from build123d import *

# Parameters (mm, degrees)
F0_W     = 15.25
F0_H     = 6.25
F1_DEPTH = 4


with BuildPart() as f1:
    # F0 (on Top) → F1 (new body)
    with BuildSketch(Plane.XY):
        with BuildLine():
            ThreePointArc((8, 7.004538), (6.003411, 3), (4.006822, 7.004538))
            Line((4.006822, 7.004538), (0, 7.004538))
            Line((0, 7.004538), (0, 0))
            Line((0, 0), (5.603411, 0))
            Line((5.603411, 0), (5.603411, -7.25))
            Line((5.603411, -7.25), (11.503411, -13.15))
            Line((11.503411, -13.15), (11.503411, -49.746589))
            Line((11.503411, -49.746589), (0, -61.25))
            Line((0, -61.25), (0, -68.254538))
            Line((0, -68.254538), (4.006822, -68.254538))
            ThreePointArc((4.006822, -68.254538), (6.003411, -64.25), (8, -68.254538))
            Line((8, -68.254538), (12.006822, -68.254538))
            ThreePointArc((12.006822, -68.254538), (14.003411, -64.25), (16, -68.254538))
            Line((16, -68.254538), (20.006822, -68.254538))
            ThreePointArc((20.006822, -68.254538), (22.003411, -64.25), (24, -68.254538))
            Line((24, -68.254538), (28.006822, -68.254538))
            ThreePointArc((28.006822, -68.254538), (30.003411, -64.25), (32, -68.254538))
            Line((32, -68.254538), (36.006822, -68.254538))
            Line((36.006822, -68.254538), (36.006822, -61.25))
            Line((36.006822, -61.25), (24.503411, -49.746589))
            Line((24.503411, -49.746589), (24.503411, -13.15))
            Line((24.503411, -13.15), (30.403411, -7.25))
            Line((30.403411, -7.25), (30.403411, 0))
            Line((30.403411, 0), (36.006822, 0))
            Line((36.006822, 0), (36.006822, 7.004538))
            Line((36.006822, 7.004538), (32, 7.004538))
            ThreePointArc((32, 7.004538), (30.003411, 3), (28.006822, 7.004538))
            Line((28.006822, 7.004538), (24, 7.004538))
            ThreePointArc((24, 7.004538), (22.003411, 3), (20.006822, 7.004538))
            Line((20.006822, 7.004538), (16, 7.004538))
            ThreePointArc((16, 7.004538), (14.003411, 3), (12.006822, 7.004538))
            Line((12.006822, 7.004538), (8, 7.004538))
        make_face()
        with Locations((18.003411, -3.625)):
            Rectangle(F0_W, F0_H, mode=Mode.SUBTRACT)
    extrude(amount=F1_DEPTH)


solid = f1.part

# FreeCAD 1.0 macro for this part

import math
import FreeCAD as App
import Part
import Sketcher
from FreeCAD import Vector
Q = App.Units.Quantity

doc = App.newDocument("Part")
body = doc.addObject("PartDesign::Body", "Body")

sketch1 = body.newObject("Sketcher::SketchObject", "Sketch")
sketch1.AttachmentSupport = (doc.getObject("XY_Plane"), [""])
sketch1.MapMode = "FlatFace"
sketch1.addGeometry([
    Part.ArcOfCircle(Part.Circle(Vector(6, 5.5, 0), Vector(0, 0, 1), 2.5), math.radians(143), math.radians(397)),
    Part.LineSegment(Vector(4, 7, 0), Vector(0, 7, 0)),
    Part.LineSegment(Vector(0, 7, 0), Vector(0, 0, 0)),
    Part.LineSegment(Vector(0, 0, 0), Vector(5.6, 0, 0)),
    Part.LineSegment(Vector(5.6, 0, 0), Vector(5.6, -7.2, 0)),
    Part.LineSegment(Vector(5.6, -7.2, 0), Vector(11.5, -13.2, 0)),
    Part.LineSegment(Vector(11.5, -13.2, 0), Vector(11.5, -49.7, 0)),
    Part.LineSegment(Vector(11.5, -49.7, 0), Vector(0, -61.2, 0)),
    Part.LineSegment(Vector(0, -61.2, 0), Vector(0, -68.3, 0)),
    Part.LineSegment(Vector(0, -68.3, 0), Vector(4, -68.3, 0)),
    Part.ArcOfCircle(Part.Circle(Vector(6, -66.8, 0), Vector(0, 0, 1), 2.5), math.radians(-37), math.radians(217)),
    Part.LineSegment(Vector(8, -68.3, 0), Vector(12, -68.3, 0)),
    Part.ArcOfCircle(Part.Circle(Vector(14, -66.8, 0), Vector(0, 0, 1), 2.5), math.radians(-37), math.radians(217)),
    Part.LineSegment(Vector(16, -68.3, 0), Vector(20, -68.3, 0)),
    Part.ArcOfCircle(Part.Circle(Vector(22, -66.8, 0), Vector(0, 0, 1), 2.5), math.radians(-37), math.radians(217)),
    Part.LineSegment(Vector(24, -68.3, 0), Vector(28, -68.3, 0)),
    Part.ArcOfCircle(Part.Circle(Vector(30, -66.8, 0), Vector(0, 0, 1), 2.5), math.radians(-37), math.radians(217)),
    Part.LineSegment(Vector(32, -68.3, 0), Vector(36, -68.3, 0)),
    Part.LineSegment(Vector(36, -68.3, 0), Vector(36, -61.2, 0)),
    Part.LineSegment(Vector(36, -61.2, 0), Vector(24.5, -49.7, 0)),
    Part.LineSegment(Vector(24.5, -49.7, 0), Vector(24.5, -13.2, 0)),
    Part.LineSegment(Vector(24.5, -13.2, 0), Vector(30.4, -7.2, 0)),
    Part.LineSegment(Vector(30.4, -7.2, 0), Vector(30.4, 0, 0)),
    Part.LineSegment(Vector(30.4, 0, 0), Vector(36, 0, 0)),
    Part.LineSegment(Vector(36, 0, 0), Vector(36, 7, 0)),
    Part.LineSegment(Vector(36, 7, 0), Vector(32, 7, 0)),
    Part.ArcOfCircle(Part.Circle(Vector(30, 5.5, 0), Vector(0, 0, 1), 2.5), math.radians(143), math.radians(397)),
    Part.LineSegment(Vector(28, 7, 0), Vector(24, 7, 0)),
    Part.ArcOfCircle(Part.Circle(Vector(22, 5.5, 0), Vector(0, 0, 1), 2.5), math.radians(143), math.radians(397)),
    Part.LineSegment(Vector(20, 7, 0), Vector(16, 7, 0)),
    Part.ArcOfCircle(Part.Circle(Vector(14, 5.5, 0), Vector(0, 0, 1), 2.5), math.radians(143), math.radians(397)),
    Part.LineSegment(Vector(12, 7, 0), Vector(8, 7, 0)),
    Part.LineSegment(Vector(25.6, -6.8, 0), Vector(10.4, -6.8, 0)),
    Part.LineSegment(Vector(10.4, -6.8, 0), Vector(10.4, -0.5, 0)),
    Part.LineSegment(Vector(10.4, -0.5, 0), Vector(25.6, -0.5, 0)),
    Part.LineSegment(Vector(25.6, -0.5, 0), Vector(25.6, -6.8, 0)),
], False)
sketch1.addConstraint([
    Sketcher.Constraint("Coincident", 0, 1, 1, 1),
    Sketcher.Constraint("Coincident", 1, 2, 2, 1),
    Sketcher.Constraint("Coincident", 2, 2, 3, 1),
    Sketcher.Constraint("Coincident", 3, 2, 4, 1),
    Sketcher.Constraint("Coincident", 4, 2, 5, 1),
    Sketcher.Constraint("Coincident", 5, 2, 6, 1),
    Sketcher.Constraint("Coincident", 6, 2, 7, 1),
    Sketcher.Constraint("Coincident", 7, 2, 8, 1),
    Sketcher.Constraint("Coincident", 8, 2, 9, 1),
    Sketcher.Constraint("Coincident", 9, 2, 10, 2),
    Sketcher.Constraint("Coincident", 10, 1, 11, 1),
    Sketcher.Constraint("Coincident", 11, 2, 12, 2),
    Sketcher.Constraint("Coincident", 12, 1, 13, 1),
    Sketcher.Constraint("Coincident", 13, 2, 14, 2),
    Sketcher.Constraint("Coincident", 14, 1, 15, 1),
    Sketcher.Constraint("Coincident", 15, 2, 16, 2),
    Sketcher.Constraint("Coincident", 16, 1, 17, 1),
    Sketcher.Constraint("Coincident", 17, 2, 18, 1),
    Sketcher.Constraint("Coincident", 18, 2, 19, 1),
    Sketcher.Constraint("Coincident", 19, 2, 20, 1),
    Sketcher.Constraint("Coincident", 20, 2, 21, 1),
    Sketcher.Constraint("Coincident", 21, 2, 22, 1),
    Sketcher.Constraint("Coincident", 22, 2, 23, 1),
    Sketcher.Constraint("Coincident", 23, 2, 24, 1),
    Sketcher.Constraint("Coincident", 24, 2, 25, 1),
    Sketcher.Constraint("Coincident", 25, 2, 26, 2),
    Sketcher.Constraint("Coincident", 26, 1, 27, 1),
    Sketcher.Constraint("Coincident", 27, 2, 28, 2),
    Sketcher.Constraint("Coincident", 28, 1, 29, 1),
    Sketcher.Constraint("Coincident", 29, 2, 30, 2),
    Sketcher.Constraint("Coincident", 30, 1, 31, 1),
    Sketcher.Constraint("Coincident", 31, 2, 0, 2),
    Sketcher.Constraint("Coincident", 32, 2, 33, 1),
    Sketcher.Constraint("Coincident", 33, 2, 34, 1),
    Sketcher.Constraint("Coincident", 34, 2, 35, 1),
    Sketcher.Constraint("Coincident", 35, 2, 32, 1),
    Sketcher.Constraint("Horizontal", 1),
    Sketcher.Constraint("Vertical", 2),
    Sketcher.Constraint("Horizontal", 3),
    Sketcher.Constraint("Vertical", 4),
    Sketcher.Constraint("Vertical", 6),
    Sketcher.Constraint("Vertical", 8),
    Sketcher.Constraint("Horizontal", 9),
    Sketcher.Constraint("Horizontal", 11),
    Sketcher.Constraint("Horizontal", 13),
    Sketcher.Constraint("Horizontal", 15),
    Sketcher.Constraint("Horizontal", 17),
    Sketcher.Constraint("Vertical", 18),
    Sketcher.Constraint("Vertical", 20),
    Sketcher.Constraint("Vertical", 22),
    Sketcher.Constraint("Horizontal", 23),
    Sketcher.Constraint("Vertical", 24),
    Sketcher.Constraint("Horizontal", 25),
    Sketcher.Constraint("Horizontal", 27),
    Sketcher.Constraint("Horizontal", 29),
    Sketcher.Constraint("Horizontal", 31),
    Sketcher.Constraint("Horizontal", 32),
    Sketcher.Constraint("Vertical", 33),
    Sketcher.Constraint("Horizontal", 34),
    Sketcher.Constraint("Vertical", 35),
    Sketcher.Constraint("Coincident", 2, 2, -1, 1),
    Sketcher.Constraint("Equal", 0, 10),
    Sketcher.Constraint("Equal", 10, 12),
    Sketcher.Constraint("Equal", 12, 14),
    Sketcher.Constraint("Equal", 14, 16),
    Sketcher.Constraint("Equal", 16, 26),
    Sketcher.Constraint("Equal", 26, 28),
    Sketcher.Constraint("Equal", 28, 30),
    Sketcher.Constraint("PointOnObject", 7, 2, -2),
    Sketcher.Constraint("PointOnObject", 22, 2, -1),
    Sketcher.Constraint("Perpendicular", 5, 7),
    Sketcher.Constraint("Perpendicular", 7, 19),
    Sketcher.Constraint("Perpendicular", 19, 21),
    Sketcher.Constraint("Horizontal", 10, 3, 12, 3),
    Sketcher.Constraint("Horizontal", 12, 3, 14, 3),
    Sketcher.Constraint("Horizontal", 14, 3, 16, 3),
    Sketcher.Constraint("Horizontal", 0, 3, 26, 3),
    Sketcher.Constraint("Horizontal", 26, 3, 28, 3),
    Sketcher.Constraint("Horizontal", 28, 3, 30, 3),
    Sketcher.Constraint("Horizontal", 9, 2, 10, 1),
    Sketcher.Constraint("Horizontal", 11, 2, 12, 1),
    Sketcher.Constraint("Horizontal", 13, 2, 14, 1),
    Sketcher.Constraint("Horizontal", 15, 2, 16, 1),
    Sketcher.Constraint("Horizontal", 7, 2, 18, 2),
    Sketcher.Constraint("Horizontal", 6, 2, 19, 2),
    Sketcher.Constraint("Horizontal", 5, 2, 20, 2),
    Sketcher.Constraint("Horizontal", 4, 2, 21, 2),
    Sketcher.Constraint("Horizontal", 1, 2, 24, 2),
    Sketcher.Constraint("Horizontal", 25, 2, 26, 1),
    Sketcher.Constraint("Horizontal", 27, 2, 28, 1),
    Sketcher.Constraint("Horizontal", 29, 2, 30, 1),
    Sketcher.Constraint("Vertical", 0, 3, 10, 3),
    Sketcher.Constraint("Vertical", 16, 3, 26, 3),
    Sketcher.Constraint("Vertical", 14, 3, 28, 3),
    Sketcher.Constraint("Vertical", 12, 3, 30, 3),
    Sketcher.Constraint("Vertical", 0, 1, 9, 2),
    Sketcher.Constraint("Vertical", 18, 2, 23, 2),
    Sketcher.Constraint("Equal", 9, 11),
    Sketcher.Constraint("Equal", 11, 13),
    Sketcher.Constraint("Equal", 13, 15),
    Sketcher.Constraint("Equal", 15, 17),
    Sketcher.Constraint("Equal", 3, 23),
    Sketcher.Constraint("Equal", 2, 8),
    Sketcher.Constraint("Radius", 0, Q("2.5 mm")),
    Sketcher.Constraint("DistanceX", -1, 1, 10, 1, Q("8 mm")),
    Sketcher.Constraint("DistanceX", 6, 2, 19, 2, Q("13 mm")),
    Sketcher.Constraint("DistanceY", 33, 2, 30, 3, Q("6 mm")),
    Sketcher.Constraint("DistanceX", 32, 2, 32, 1, Q("15.25 mm")),
    Sketcher.Constraint("DistanceY", 4, 2, 4, 1, Q("7.25 mm")),
    Sketcher.Constraint("DistanceY", 33, 1, 33, 2, Q("6.25 mm")),
    Sketcher.Constraint("DistanceY", -1, 1, 0, 3, Q("5.5 mm")),
    Sketcher.Constraint("DistanceX", 3, 2, 0, 3, Q("0.4 mm")),
    Sketcher.Constraint("DistanceY", 10, 3, -1, 1, Q("66.75 mm")),
    Sketcher.Constraint("DistanceX", 4, 2, 32, 2, Q("4.775 mm")),
    Sketcher.Constraint("DistanceX", 1, 2, 1, 1, Q("4.006822 mm")),
])
pad1 = body.newObject("PartDesign::Pad", "Pad")
pad1.Profile = sketch1
pad1.Length = 4

doc.recompute()
